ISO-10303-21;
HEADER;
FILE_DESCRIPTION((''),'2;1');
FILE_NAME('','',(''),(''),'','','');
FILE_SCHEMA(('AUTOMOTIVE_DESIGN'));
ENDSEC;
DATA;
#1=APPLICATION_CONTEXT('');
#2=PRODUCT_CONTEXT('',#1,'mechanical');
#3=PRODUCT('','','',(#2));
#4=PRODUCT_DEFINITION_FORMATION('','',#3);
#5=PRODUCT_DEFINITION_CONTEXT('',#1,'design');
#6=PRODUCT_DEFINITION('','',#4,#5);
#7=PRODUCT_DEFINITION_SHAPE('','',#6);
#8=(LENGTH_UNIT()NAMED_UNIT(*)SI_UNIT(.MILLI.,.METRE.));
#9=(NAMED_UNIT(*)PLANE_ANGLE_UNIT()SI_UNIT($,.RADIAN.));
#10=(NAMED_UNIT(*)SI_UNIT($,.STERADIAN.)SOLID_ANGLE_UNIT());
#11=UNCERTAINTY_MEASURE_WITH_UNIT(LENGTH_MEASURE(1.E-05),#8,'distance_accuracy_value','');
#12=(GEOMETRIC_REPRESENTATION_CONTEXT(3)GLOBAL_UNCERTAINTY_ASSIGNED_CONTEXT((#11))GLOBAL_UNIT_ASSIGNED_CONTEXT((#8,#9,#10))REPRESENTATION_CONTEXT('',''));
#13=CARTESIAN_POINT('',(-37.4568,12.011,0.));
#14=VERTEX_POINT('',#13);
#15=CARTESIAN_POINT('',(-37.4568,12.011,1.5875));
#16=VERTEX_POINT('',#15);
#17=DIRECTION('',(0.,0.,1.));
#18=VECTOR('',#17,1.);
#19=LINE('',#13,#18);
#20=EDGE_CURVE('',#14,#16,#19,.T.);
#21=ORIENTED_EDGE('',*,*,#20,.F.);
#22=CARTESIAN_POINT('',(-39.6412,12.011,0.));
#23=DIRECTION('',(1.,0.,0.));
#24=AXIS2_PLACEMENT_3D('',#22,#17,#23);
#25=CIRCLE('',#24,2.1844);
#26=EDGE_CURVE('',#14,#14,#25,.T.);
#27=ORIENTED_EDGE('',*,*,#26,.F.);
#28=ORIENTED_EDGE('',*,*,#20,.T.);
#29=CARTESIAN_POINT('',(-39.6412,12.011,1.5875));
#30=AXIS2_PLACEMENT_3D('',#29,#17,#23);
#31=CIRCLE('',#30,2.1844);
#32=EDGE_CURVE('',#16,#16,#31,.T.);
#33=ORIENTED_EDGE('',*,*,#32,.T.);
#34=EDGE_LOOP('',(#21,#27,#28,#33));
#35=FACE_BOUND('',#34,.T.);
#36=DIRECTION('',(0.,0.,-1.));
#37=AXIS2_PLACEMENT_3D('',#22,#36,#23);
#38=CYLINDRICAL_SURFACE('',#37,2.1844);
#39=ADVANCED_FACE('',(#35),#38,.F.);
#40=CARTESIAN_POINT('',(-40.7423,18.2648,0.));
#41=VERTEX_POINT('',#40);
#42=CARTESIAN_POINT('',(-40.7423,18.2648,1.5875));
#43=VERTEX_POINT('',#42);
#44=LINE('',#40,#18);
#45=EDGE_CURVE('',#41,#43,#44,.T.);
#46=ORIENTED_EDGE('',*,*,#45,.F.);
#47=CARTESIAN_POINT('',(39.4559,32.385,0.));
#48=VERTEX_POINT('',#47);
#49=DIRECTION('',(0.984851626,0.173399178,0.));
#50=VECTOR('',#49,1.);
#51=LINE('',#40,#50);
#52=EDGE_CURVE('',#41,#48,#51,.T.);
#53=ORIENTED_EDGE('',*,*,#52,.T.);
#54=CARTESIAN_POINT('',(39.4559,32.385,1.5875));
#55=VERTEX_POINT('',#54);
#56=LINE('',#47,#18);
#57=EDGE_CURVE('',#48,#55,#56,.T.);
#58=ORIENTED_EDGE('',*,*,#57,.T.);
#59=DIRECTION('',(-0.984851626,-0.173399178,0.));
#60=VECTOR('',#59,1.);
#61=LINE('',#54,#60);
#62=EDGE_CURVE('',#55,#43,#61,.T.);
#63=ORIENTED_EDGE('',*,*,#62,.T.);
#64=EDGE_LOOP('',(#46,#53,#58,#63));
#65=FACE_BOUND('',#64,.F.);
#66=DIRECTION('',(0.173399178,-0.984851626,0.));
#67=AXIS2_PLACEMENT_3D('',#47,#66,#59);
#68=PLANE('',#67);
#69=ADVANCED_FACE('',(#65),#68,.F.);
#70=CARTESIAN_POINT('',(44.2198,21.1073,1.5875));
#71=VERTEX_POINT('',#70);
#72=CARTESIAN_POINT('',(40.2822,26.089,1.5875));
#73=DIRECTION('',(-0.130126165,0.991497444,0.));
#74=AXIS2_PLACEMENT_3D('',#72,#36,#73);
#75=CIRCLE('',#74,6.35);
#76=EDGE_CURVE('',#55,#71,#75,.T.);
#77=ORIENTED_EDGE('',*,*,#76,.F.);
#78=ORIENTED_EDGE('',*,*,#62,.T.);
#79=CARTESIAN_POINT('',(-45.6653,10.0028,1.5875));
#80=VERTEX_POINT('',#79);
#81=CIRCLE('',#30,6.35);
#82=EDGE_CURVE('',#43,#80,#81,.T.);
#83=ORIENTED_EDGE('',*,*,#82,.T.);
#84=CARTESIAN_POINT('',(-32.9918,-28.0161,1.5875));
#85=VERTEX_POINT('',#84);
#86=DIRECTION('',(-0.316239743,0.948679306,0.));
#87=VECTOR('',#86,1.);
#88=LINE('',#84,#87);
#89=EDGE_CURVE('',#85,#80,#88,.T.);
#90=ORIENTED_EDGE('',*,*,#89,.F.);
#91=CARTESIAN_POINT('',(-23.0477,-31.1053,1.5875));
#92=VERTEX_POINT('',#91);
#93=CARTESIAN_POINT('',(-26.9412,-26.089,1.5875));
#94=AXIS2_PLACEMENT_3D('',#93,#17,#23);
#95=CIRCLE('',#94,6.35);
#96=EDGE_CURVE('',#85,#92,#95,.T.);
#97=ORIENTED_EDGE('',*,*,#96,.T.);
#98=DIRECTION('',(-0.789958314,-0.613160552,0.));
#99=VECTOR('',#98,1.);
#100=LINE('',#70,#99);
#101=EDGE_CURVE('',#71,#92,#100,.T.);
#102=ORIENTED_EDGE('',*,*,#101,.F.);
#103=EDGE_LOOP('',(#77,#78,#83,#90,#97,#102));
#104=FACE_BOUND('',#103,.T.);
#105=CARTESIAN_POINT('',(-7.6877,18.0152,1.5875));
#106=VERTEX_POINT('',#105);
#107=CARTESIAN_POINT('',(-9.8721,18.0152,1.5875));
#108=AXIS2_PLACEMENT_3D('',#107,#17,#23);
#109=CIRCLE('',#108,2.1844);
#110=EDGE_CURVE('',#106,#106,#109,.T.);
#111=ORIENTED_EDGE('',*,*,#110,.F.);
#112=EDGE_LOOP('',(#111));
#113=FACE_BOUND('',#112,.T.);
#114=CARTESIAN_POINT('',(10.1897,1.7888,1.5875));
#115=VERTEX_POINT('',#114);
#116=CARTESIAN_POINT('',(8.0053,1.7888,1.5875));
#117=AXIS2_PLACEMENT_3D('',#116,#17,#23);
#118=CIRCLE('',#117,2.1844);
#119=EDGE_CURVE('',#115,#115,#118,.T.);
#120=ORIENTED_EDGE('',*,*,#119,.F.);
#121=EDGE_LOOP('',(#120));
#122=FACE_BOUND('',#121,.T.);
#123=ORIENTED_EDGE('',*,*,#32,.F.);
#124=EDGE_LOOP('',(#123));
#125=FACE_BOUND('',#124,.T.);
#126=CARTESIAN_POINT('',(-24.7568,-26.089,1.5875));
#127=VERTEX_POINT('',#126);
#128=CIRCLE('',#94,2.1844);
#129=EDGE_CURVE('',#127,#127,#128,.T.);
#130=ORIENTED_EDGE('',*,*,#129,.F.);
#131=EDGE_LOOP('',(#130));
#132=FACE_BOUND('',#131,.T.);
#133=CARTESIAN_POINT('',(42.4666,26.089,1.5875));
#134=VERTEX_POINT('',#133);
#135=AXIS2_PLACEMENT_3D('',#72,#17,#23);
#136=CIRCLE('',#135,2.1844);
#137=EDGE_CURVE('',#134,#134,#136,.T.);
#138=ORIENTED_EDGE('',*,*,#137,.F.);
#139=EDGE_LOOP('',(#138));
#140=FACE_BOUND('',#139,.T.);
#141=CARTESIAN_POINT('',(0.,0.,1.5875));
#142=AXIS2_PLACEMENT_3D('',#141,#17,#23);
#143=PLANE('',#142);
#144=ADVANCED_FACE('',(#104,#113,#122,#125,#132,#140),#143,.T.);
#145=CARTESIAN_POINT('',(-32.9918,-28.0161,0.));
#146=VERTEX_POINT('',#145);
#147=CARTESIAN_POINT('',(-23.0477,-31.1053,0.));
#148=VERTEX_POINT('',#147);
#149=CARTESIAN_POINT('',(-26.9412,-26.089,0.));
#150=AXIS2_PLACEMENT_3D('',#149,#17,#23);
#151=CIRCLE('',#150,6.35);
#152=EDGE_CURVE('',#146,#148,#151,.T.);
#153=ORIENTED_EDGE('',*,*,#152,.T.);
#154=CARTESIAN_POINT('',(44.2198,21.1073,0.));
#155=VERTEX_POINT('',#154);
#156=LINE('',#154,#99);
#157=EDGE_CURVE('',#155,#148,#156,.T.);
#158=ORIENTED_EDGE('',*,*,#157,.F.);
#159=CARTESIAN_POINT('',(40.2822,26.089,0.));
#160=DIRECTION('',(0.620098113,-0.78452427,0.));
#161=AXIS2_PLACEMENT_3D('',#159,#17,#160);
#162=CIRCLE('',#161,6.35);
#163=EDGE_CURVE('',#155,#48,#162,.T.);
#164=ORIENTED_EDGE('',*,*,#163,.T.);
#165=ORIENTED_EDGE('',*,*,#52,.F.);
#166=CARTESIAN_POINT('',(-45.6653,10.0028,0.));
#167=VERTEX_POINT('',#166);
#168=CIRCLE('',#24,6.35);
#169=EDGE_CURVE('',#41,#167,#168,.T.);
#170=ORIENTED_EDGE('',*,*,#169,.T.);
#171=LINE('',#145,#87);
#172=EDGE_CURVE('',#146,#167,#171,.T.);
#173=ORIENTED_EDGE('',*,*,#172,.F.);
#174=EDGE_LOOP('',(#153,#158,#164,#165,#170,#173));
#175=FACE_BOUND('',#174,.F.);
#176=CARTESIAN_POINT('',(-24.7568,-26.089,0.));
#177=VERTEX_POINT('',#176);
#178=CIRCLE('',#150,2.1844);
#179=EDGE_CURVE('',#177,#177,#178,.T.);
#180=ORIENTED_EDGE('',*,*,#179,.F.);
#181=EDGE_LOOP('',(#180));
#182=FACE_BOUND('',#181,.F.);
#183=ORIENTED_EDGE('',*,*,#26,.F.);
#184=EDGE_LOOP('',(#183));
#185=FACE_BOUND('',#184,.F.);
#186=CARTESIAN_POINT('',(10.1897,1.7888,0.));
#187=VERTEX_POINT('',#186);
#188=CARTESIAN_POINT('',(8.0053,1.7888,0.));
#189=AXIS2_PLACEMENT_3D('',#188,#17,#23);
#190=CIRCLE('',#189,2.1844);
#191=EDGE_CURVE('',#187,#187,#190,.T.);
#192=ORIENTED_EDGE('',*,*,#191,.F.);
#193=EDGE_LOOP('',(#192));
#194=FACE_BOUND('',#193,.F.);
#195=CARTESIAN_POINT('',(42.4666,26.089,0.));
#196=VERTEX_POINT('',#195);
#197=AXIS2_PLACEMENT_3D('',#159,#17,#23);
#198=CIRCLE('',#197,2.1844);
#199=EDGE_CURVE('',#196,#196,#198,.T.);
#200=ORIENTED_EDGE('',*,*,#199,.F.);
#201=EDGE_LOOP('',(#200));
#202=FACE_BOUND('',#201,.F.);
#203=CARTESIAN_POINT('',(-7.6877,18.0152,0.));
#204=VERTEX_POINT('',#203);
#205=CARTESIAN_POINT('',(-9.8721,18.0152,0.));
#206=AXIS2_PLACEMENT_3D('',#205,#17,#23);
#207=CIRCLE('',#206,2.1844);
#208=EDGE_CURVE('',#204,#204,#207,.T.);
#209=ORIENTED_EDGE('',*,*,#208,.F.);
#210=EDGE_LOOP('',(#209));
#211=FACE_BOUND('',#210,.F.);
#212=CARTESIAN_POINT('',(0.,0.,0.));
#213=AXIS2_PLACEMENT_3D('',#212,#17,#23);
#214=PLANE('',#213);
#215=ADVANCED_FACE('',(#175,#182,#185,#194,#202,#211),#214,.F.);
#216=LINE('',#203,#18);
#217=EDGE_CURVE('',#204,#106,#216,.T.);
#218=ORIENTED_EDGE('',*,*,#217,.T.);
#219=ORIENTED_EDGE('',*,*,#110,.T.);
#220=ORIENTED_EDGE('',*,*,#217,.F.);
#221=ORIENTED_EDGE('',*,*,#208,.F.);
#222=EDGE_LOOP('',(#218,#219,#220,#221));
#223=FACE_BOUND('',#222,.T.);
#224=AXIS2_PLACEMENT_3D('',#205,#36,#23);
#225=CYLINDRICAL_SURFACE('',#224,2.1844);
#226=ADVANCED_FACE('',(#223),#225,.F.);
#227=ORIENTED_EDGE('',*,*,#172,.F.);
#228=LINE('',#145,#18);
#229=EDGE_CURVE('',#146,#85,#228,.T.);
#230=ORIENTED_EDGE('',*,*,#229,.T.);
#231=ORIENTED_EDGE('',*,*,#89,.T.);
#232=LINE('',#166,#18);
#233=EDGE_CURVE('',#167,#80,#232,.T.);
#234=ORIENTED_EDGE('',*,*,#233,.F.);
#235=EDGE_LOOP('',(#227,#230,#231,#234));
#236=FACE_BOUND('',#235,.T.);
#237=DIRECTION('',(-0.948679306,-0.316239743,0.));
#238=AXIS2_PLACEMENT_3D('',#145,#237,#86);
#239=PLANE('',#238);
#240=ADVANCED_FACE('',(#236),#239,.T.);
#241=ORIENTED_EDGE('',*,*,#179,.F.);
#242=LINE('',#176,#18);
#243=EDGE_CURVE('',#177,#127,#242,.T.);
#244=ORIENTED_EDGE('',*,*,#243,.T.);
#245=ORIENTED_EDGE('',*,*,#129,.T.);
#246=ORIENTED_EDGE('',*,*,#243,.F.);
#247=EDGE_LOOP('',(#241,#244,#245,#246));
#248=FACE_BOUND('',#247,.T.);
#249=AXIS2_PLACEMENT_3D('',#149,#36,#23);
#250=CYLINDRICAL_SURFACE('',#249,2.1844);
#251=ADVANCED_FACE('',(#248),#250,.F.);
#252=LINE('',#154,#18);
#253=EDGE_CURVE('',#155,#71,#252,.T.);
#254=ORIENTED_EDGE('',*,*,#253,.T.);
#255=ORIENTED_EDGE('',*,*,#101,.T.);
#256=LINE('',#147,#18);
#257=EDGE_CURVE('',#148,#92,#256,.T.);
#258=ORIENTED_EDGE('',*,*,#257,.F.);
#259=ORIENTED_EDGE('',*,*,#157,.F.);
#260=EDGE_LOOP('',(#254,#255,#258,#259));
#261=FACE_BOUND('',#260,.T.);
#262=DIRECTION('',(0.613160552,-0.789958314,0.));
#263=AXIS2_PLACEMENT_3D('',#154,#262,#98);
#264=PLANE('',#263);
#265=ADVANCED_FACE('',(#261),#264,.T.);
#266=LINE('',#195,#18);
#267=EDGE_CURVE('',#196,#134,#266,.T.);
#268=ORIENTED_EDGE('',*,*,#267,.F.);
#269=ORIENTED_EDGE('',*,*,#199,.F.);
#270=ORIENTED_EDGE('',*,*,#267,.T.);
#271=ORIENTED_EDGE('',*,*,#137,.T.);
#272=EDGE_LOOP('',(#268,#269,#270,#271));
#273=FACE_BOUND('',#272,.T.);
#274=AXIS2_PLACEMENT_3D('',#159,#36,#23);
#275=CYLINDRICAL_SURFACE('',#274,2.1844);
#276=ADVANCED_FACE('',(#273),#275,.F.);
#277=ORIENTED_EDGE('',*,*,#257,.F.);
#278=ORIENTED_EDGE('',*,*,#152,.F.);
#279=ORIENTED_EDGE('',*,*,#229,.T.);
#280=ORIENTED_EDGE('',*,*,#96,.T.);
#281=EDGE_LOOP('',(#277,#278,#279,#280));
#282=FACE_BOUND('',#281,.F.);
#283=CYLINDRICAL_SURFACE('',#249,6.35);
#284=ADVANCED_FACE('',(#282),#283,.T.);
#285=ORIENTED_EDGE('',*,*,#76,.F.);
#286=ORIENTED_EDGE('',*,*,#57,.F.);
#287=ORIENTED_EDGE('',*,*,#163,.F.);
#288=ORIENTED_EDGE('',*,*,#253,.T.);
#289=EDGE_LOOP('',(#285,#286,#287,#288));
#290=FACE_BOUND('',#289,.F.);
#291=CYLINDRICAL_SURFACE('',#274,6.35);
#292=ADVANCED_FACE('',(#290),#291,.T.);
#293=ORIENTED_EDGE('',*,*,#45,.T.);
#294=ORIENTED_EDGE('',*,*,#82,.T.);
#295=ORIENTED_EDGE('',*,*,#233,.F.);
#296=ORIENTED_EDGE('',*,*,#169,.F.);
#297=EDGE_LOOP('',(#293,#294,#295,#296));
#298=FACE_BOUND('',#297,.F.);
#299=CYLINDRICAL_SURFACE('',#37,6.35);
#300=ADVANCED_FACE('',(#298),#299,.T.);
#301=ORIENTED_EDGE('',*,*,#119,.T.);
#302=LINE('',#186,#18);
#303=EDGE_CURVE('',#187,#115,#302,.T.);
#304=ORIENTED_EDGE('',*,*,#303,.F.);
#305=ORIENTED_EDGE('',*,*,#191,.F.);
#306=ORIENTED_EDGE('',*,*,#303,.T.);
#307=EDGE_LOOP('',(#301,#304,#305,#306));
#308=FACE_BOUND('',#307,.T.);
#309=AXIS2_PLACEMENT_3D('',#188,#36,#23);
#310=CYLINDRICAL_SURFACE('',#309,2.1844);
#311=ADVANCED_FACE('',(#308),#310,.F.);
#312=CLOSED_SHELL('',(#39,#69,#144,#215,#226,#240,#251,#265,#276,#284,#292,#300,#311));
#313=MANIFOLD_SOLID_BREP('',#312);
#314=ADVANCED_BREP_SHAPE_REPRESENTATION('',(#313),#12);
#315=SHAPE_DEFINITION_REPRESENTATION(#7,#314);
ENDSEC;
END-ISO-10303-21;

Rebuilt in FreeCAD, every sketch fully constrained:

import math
import FreeCAD as App
import Part
import Sketcher

V = App.Vector
Q = App.Units.Quantity

doc = App.newDocument("Part")
body = doc.addObject("PartDesign::Body", "Body")

sketch1 = doc.addObject("Sketcher::SketchObject", "Sketch")
body.addObject(sketch1)
sketch1.AttachmentSupport = (doc.XY_Plane, [""])
sketch1.MapMode = "FlatFace"
sketch1.addGeometry([
    Part.ArcOfCircle(Part.Circle(V(40.3, 26.1, 0), V(0, 0, 1), 6.3), math.radians(-52), math.radians(97)),
    Part.LineSegment(V(39.5, 32.4, 0), V(-40.7, 18.3, 0)),
    Part.ArcOfCircle(Part.Circle(V(-39.6, 12, 0), V(0, 0, 1), 6.3), math.radians(100), math.radians(198)),
    Part.LineSegment(V(-45.7, 10, 0), V(-33, -28, 0)),
    Part.ArcOfCircle(Part.Circle(V(-26.9, -26.1, 0), V(0, 0, 1), 6.3), math.radians(-162), math.radians(-52)),
    Part.LineSegment(V(-23, -31.1, 0), V(44.2, 21.1, 0)),
    Part.Circle(V(-9.9, 18, 0), V(0, 0, 1), 2.2),
    Part.Circle(V(8, 1.8, 0), V(0, 0, 1), 2.2),
    Part.Circle(V(40.3, 26.1, 0), V(0, 0, 1), 2.2),
    Part.Circle(V(-26.9, -26.1, 0), V(0, 0, 1), 2.2),
    Part.Circle(V(-39.6, 12, 0), V(0, 0, 1), 2.2),
], False)
sketch1.addConstraint([
    Sketcher.Constraint("Coincident", 0, 2, 1, 1),
    Sketcher.Constraint("Tangent", 1, 2, 2, 1),
    Sketcher.Constraint("Tangent", 2, 2, 3, 1),
    Sketcher.Constraint("Coincident", 3, 2, 4, 1),
    Sketcher.Constraint("Tangent", 4, 2, 5, 1),
    Sketcher.Constraint("Coincident", 5, 2, 0, 1),
    Sketcher.Constraint("Coincident", 8, 3, 0, 3),
    Sketcher.Constraint("Coincident", 9, 3, 4, 3),
    Sketcher.Constraint("Coincident", 10, 3, 2, 3),
    Sketcher.Constraint("Equal", 0, 2),
    Sketcher.Constraint("Equal", 2, 4),
    Sketcher.Constraint("Equal", 6, 7),
    Sketcher.Constraint("Equal", 7, 8),
    Sketcher.Constraint("Equal", 8, 9),
    Sketcher.Constraint("Equal", 9, 10),
    Sketcher.Constraint("Radius", 0, Q("0.25 in")),
    Sketcher.Constraint("DistanceX", 2, 3, 4, 3, Q("0.5 in")),
    Sketcher.Constraint("Diameter", 6, Q("0.172 in")),
    Sketcher.Constraint("DistanceY", 4, 3, 2, 3, Q("1.5 in")),
    Sketcher.Constraint("DistanceY", -1, 1, 0, 2, Q("1.275 in")),
    Sketcher.Constraint("DistanceY", 3, 2, -1, 1, Q("1.103 in")),
    Sketcher.Constraint("DistanceY", -1, 1, 5, 2, Q("0.831 in")),
    Sketcher.Constraint("DistanceX", 2, 3, 6, 3, Q("1.172 in")),
    Sketcher.Constraint("Distance", 5, Q("3.3525 in")),
    Sketcher.Constraint("DistanceY", -1, 1, 2, 2, Q("0.3938 in")),
    Sketcher.Constraint("DistanceX", 3, 2, -1, 1, Q("1.2989 in")),
    Sketcher.Constraint("DistanceX", 2, 3, 0, 3, Q("3.1466 in")),
    Sketcher.Constraint("DistanceY", 7, 3, 0, 3, Q("0.9567 in")),
    Sketcher.Constraint("DistanceY", -1, 1, 6, 3, Q("18.0152 mm")),
    Sketcher.Constraint("DistanceX", -1, 1, 7, 3, Q("8.0053 mm")),
])
pad1 = doc.addObject("PartDesign::Pad", "Pad")
body.addObject(pad1)
pad1.Profile = sketch1
pad1.Length = Q("0.0625 in")

doc.recompute()
